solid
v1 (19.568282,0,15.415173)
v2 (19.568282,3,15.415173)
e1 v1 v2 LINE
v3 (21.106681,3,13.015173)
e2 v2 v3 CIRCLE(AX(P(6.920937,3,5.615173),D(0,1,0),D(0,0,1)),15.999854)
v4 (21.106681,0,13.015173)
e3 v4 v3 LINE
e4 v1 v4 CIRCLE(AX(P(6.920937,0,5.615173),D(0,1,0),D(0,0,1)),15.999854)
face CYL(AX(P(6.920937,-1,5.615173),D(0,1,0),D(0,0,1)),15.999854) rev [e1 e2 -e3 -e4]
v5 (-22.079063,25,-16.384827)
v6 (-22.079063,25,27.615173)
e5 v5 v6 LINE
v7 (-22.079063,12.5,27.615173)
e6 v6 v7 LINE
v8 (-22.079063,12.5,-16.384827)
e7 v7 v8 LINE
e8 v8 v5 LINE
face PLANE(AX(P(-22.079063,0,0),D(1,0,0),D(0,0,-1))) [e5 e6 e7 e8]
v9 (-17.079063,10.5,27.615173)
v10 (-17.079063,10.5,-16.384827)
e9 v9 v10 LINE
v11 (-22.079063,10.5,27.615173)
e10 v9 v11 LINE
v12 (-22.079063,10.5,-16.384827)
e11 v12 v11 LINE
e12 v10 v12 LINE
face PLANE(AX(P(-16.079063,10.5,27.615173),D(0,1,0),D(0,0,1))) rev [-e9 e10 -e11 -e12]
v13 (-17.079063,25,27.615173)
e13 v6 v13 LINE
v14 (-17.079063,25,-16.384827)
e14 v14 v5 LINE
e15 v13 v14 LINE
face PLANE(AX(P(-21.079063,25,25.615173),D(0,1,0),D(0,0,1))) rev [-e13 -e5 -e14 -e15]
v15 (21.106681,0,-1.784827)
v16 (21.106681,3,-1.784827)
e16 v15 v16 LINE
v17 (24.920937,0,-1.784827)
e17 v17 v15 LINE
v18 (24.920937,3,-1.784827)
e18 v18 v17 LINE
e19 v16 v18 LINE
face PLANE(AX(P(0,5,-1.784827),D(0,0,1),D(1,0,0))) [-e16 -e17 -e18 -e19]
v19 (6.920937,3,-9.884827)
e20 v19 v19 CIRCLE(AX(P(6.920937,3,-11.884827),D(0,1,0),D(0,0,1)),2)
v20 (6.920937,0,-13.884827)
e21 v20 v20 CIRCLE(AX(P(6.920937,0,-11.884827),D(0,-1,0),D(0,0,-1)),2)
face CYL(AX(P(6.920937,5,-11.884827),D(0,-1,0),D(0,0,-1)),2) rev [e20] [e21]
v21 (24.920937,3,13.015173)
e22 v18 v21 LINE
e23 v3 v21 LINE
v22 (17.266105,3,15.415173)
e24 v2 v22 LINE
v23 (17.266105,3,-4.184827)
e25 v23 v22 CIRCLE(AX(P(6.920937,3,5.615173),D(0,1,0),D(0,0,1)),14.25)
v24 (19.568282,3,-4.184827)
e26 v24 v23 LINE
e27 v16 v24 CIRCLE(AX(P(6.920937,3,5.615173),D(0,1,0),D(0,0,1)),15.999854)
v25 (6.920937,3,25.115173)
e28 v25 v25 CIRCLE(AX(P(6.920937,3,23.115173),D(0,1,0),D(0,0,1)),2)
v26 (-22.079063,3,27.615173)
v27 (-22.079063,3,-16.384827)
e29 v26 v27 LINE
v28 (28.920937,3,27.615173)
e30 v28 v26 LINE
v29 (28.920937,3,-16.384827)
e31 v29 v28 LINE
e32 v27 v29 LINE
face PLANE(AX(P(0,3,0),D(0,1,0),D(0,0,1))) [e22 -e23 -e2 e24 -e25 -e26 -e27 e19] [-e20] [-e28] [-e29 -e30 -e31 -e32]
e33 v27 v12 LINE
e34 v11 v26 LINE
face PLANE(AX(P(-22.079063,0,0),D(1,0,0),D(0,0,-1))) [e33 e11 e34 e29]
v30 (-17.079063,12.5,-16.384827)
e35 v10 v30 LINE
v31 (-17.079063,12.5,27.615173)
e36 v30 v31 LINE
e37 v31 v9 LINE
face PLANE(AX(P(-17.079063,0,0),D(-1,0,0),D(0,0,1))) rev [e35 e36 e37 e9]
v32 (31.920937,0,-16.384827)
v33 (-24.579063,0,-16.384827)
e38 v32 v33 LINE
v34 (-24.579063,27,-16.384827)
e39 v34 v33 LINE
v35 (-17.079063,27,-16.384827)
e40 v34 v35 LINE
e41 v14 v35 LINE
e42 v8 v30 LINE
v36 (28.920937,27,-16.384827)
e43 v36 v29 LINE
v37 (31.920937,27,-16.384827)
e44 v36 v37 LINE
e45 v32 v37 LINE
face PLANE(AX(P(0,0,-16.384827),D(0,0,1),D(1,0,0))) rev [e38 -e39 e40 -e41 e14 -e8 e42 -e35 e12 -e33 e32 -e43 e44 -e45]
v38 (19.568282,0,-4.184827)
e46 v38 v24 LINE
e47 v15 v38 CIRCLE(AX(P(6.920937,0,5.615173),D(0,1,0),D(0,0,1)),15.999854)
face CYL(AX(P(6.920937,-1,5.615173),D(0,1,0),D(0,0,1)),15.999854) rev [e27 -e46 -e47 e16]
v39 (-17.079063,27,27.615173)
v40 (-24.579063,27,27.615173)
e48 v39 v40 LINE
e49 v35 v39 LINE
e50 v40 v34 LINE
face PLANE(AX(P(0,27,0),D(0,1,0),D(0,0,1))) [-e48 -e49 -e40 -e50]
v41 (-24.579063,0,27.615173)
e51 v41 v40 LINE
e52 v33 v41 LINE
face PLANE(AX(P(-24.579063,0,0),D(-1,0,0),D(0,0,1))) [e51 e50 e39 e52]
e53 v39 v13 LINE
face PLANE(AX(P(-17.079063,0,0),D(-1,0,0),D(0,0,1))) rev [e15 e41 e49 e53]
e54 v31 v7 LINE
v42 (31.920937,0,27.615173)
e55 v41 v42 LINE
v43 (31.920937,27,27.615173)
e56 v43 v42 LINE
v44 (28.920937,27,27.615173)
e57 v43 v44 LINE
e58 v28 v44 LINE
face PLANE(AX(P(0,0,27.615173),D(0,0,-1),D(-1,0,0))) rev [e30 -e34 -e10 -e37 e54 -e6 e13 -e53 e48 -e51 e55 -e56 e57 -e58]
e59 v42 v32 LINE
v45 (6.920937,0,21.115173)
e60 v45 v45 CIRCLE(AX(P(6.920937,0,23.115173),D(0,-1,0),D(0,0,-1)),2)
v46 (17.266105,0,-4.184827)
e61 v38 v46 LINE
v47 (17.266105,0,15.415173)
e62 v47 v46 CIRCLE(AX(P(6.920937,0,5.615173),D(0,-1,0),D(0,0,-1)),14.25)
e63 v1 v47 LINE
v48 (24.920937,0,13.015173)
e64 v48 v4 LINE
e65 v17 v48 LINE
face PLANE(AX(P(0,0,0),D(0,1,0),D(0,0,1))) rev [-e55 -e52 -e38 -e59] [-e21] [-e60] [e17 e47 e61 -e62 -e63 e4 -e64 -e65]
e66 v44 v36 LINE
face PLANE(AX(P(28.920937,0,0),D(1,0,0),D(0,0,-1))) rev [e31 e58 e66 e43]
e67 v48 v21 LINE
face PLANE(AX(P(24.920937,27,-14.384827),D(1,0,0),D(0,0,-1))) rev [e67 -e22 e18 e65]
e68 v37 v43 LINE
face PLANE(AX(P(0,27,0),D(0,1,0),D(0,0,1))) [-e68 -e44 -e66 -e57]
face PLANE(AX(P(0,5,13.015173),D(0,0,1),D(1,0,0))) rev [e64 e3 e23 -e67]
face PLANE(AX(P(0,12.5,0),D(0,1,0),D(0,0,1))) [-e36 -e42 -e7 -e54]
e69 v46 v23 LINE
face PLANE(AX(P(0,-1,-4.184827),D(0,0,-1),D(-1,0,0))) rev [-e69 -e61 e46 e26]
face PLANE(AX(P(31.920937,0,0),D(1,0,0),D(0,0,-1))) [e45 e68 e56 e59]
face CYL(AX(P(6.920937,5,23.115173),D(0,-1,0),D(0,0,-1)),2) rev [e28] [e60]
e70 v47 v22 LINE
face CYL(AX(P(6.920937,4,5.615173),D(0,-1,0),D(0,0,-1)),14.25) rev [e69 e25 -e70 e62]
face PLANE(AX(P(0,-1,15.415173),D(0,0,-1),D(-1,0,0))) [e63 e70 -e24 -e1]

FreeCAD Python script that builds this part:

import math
import FreeCAD as App
import Part
import Sketcher
from FreeCAD import Vector
Q = App.Units.Quantity

doc = App.newDocument("Part")
body = doc.addObject("PartDesign::Body", "Body")

# Sketch on XZ plane
sketch1 = body.newObject("Sketcher::SketchObject", "Sketch")
sketch1.AttachmentSupport = (doc.getObject("XZ_Plane"), [""])
sketch1.MapMode = "FlatFace"
sketch1.addGeometry([
    Part.LineSegment(Vector(-23, -14, 0), Vector(-23, 26, 0)),
    Part.LineSegment(Vector(-23, 26, 0), Vector(27, 26, 0)),
    Part.LineSegment(Vector(27, 26, 0), Vector(27, -14, 0)),
    Part.LineSegment(Vector(27, -14, 0), Vector(-23, -14, 0)),
], False)
sketch1.addConstraint([
    Sketcher.Constraint("Coincident", 0, 2, 1, 1),
    Sketcher.Constraint("Coincident", 1, 2, 2, 1),
    Sketcher.Constraint("Coincident", 2, 2, 3, 1),
    Sketcher.Constraint("Coincident", 3, 2, 0, 1),
    Sketcher.Constraint("Vertical", 0),
    Sketcher.Constraint("Horizontal", 1),
    Sketcher.Constraint("Vertical", 2),
    Sketcher.Constraint("Horizontal", 3),
    Sketcher.Constraint("DistanceX", 1, 1, 1, 2, Q("50 mm")),
    Sketcher.Constraint("DistanceY", 0, 1, 0, 2, Q("40 mm")),
    Sketcher.Constraint("DistanceX", 0, 2, -1, 1, Q("23.079063 mm")),
    Sketcher.Constraint("DistanceY", -1, 1, 0, 2, Q("25.615173 mm")),
])
pad1 = body.newObject("PartDesign::Pad", "Pad")
pad1.Profile = sketch1
pad1.Length = 3
pad1.Reversed = True

# Sketch on XZ plane
sketch2 = body.newObject("Sketcher::SketchObject", "Sketch001")
sketch2.AttachmentSupport = (doc.getObject("XZ_Plane"), [""])
sketch2.MapMode = "FlatFace"
sketch2.AttachmentOffset = App.Placement(Vector(0, 0, -3), App.Rotation())
sketch2.addGeometry([
    Part.LineSegment(Vector(-23.1, -14.4, 0), Vector(-23.1, 25.6, 0)),
    Part.LineSegment(Vector(-23.1, 25.6, 0), Vector(-19.1, 25.6, 0)),
    Part.LineSegment(Vector(-19.1, 25.6, 0), Vector(-19.1, -14.4, 0)),
    Part.LineSegment(Vector(-19.1, -14.4, 0), Vector(-23.1, -14.4, 0)),
], False)
sketch2.addConstraint([
    Sketcher.Constraint("Coincident", 0, 2, 1, 1),
    Sketcher.Constraint("Coincident", 1, 2, 2, 1),
    Sketcher.Constraint("Coincident", 2, 2, 3, 1),
    Sketcher.Constraint("Coincident", 3, 2, 0, 1),
    Sketcher.Constraint("Vertical", 0),
    Sketcher.Constraint("Horizontal", 1),
    Sketcher.Constraint("Vertical", 2),
    Sketcher.Constraint("Horizontal", 3),
    Sketcher.Constraint("DistanceX", 1, 1, 1, 2, Q("4 mm")),
    Sketcher.Constraint("DistanceY", 0, 1, 0, 2, Q("40 mm")),
    Sketcher.Constraint("DistanceX", 0, 2, -1, 1, Q("23.079063 mm")),
    Sketcher.Constraint("DistanceY", -1, 1, 0, 2, Q("25.615173 mm")),
])
pad2 = body.newObject("PartDesign::Pad", "Pad001")
pad2.Profile = sketch2
pad2.Length = 24
pad2.Reversed = True

# Sketch on YZ plane
sketch3 = body.newObject("Sketcher::SketchObject", "Sketch002")
sketch3.AttachmentSupport = (doc.getObject("YZ_Plane"), [""])
sketch3.MapMode = "FlatFace"
sketch3.AttachmentOffset = App.Placement(Vector(0, 0, -19.079063), App.Rotation())
sketch3.addGeometry([
    Part.LineSegment(Vector(25, 26, 0), Vector(12, 26, 0)),
    Part.LineSegment(Vector(12, 26, 0), Vector(12, -14, 0)),
    Part.LineSegment(Vector(12, -14, 0), Vector(25, -14, 0)),
    Part.LineSegment(Vector(25, -14, 0), Vector(25, 26, 0)),
], False)
sketch3.addConstraint([
    Sketcher.Constraint("Coincident", 0, 2, 1, 1),
    Sketcher.Constraint("Coincident", 1, 2, 2, 1),
    Sketcher.Constraint("Coincident", 2, 2, 3, 1),
    Sketcher.Constraint("Coincident", 3, 2, 0, 1),
    Sketcher.Constraint("Horizontal", 0),
    Sketcher.Constraint("Vertical", 1),
    Sketcher.Constraint("Horizontal", 2),
    Sketcher.Constraint("Vertical", 3),
    Sketcher.Constraint("DistanceX", 0, 2, 0, 1, Q("13 mm")),
    Sketcher.Constraint("DistanceY", 1, 2, 1, 1, Q("40 mm")),
    Sketcher.Constraint("DistanceX", -1, 1, 0, 2, Q("12 mm")),
    Sketcher.Constraint("DistanceY", -1, 1, 0, 2, Q("25.615173 mm")),
])
pocket1 = body.newObject("PartDesign::Pocket", "Pocket")
pocket1.Profile = sketch3
pocket1.Length = 2

# Sketch on XZ plane
sketch4 = body.newObject("Sketcher::SketchObject", "Sketch003")
sketch4.AttachmentSupport = (doc.getObject("XZ_Plane"), [""])
sketch4.MapMode = "FlatFace"
sketch4.AttachmentOffset = App.Placement(Vector(0, 0, -3), App.Rotation())
sketch4.addGeometry([
    Part.LineSegment(Vector(24.9, -14.4, 0), Vector(24.9, 25.6, 0)),
    Part.LineSegment(Vector(24.9, 25.6, 0), Vector(26.9, 25.6, 0)),
    Part.LineSegment(Vector(26.9, 25.6, 0), Vector(26.9, -14.4, 0)),
    Part.LineSegment(Vector(26.9, -14.4, 0), Vector(24.9, -14.4, 0)),
], False)
sketch4.addConstraint([
    Sketcher.Constraint("Coincident", 0, 2, 1, 1),
    Sketcher.Constraint("Coincident", 1, 2, 2, 1),
    Sketcher.Constraint("Coincident", 2, 2, 3, 1),
    Sketcher.Constraint("Coincident", 3, 2, 0, 1),
    Sketcher.Constraint("Vertical", 0),
    Sketcher.Constraint("Horizontal", 1),
    Sketcher.Constraint("Vertical", 2),
    Sketcher.Constraint("Horizontal", 3),
    Sketcher.Constraint("DistanceX", 1, 1, 1, 2, Q("2 mm")),
    Sketcher.Constraint("DistanceY", 0, 1, 0, 2, Q("40 mm")),
    Sketcher.Constraint("DistanceX", -1, 1, 0, 2, Q("24.920937 mm")),
    Sketcher.Constraint("DistanceY", -1, 1, 0, 2, Q("25.615173 mm")),
])
pad3 = body.newObject("PartDesign::Pad", "Pad002")
pad3.Profile = sketch4
pad3.Length = 24
pad3.Reversed = True

# Sketch on XZ plane
sketch5 = body.newObject("Sketcher::SketchObject", "Sketch004")
sketch5.AttachmentSupport = (doc.getObject("XZ_Plane"), [""])
sketch5.MapMode = "FlatFace"
sketch5.addGeometry([
    Part.Circle(Vector(6.9, 23.1, 0), Vector(0, 0, 1), 2),  # 0
    Part.Circle(Vector(6.9, -11.9, 0), Vector(0, 0, 1), 2),  # 1
    Part.LineSegment(Vector(24.4, 13, 0), Vector(18.9, 13, 0)),  # 2
    Part.ArcOfCircle(Part.Circle(Vector(6.9, 5.6, 0), Vector(0, 0, 1), 14.1), math.radians(32), math.radians(328)),  # 3
    Part.LineSegment(Vector(18.9, -1.8, 0), Vector(24.4, -1.8, 0)),  # 4
    Part.LineSegment(Vector(24.4, -1.8, 0), Vector(24.4, 13, 0)),  # 5
], False)
sketch5.addConstraint([
    Sketcher.Constraint("Coincident", 2, 2, 3, 1),
    Sketcher.Constraint("Coincident", 3, 2, 4, 1),
    Sketcher.Constraint("Coincident", 4, 2, 5, 1),
    Sketcher.Constraint("Coincident", 5, 2, 2, 1),
    Sketcher.Constraint("Horizontal", 2),
    Sketcher.Constraint("Horizontal", 4),
    Sketcher.Constraint("Vertical", 5),
    Sketcher.Constraint("Equal", 0, 1),
    Sketcher.Constraint("Vertical", 0, 3, 1, 3),
    Sketcher.Constraint("Vertical", 1, 3, 3, 3),
    Sketcher.Constraint("Vertical", 2, 2, 3, 2),
    Sketcher.Constraint("Diameter", 0, Q("4 mm")),
    Sketcher.Constraint("Radius", 3, Q("14.1 mm")),
    Sketcher.Constraint("DistanceY", 5, 1, 5, 2, Q("14.8 mm")),
    Sketcher.Constraint("DistanceY", 1, 3, 0, 3, Q("35 mm")),
    Sketcher.Constraint("DistanceY", 3, 3, 0, 3, Q("17.5 mm")),
    Sketcher.Constraint("DistanceX", 3, 3, 4, 2, Q("17.5 mm")),
    Sketcher.Constraint("DistanceX", -1, 1, 2, 2, Q("18.923021 mm")),
    Sketcher.Constraint("DistanceY", -1, 1, 0, 3, Q("23.115173 mm")),
])
pocket2 = body.newObject("PartDesign::Pocket", "Pocket001")
pocket2.Profile = sketch5
pocket2.Length = 5

# Sketch on XY plane
sketch6 = body.newObject("Sketcher::SketchObject", "Sketch005")
sketch6.AttachmentSupport = (doc.getObject("XY_Plane"), [""])
sketch6.MapMode = "FlatFace"
sketch6.AttachmentOffset = App.Placement(Vector(0, 0, 25.615173), App.Rotation())
sketch6.addGeometry([
    Part.LineSegment(Vector(-19.1, 25, 0), Vector(-19.1, 27, 0)),  # 0
    Part.LineSegment(Vector(-19.1, 27, 0), Vector(-23.1, 27, 0)),  # 1
    Part.LineSegment(Vector(-23.1, 27, 0), Vector(-23.1, 0, 0)),  # 2
    Part.LineSegment(Vector(-23.1, 0, 0), Vector(26.9, 0, 0)),  # 3
    Part.LineSegment(Vector(26.9, 0, 0), Vector(26.9, 27, 0)),  # 4
    Part.LineSegment(Vector(26.9, 27, 0), Vector(24.9, 27, 0)),  # 5
    Part.LineSegment(Vector(24.9, 27, 0), Vector(24.9, 3, 0)),  # 6
    Part.LineSegment(Vector(24.9, 3, 0), Vector(-19.1, 3, 0)),  # 7
    Part.LineSegment(Vector(-19.1, 3, 0), Vector(-19.1, 12, 0)),  # 8
    Part.LineSegment(Vector(-19.1, 12, 0), Vector(-21.1, 12, 0)),  # 9
    Part.LineSegment(Vector(-21.1, 12, 0), Vector(-21.1, 25, 0)),  # 10
    Part.LineSegment(Vector(-21.1, 25, 0), Vector(-19.1, 25, 0)),  # 11
], False)
sketch6.addConstraint([
    Sketcher.Constraint("Coincident", 0, 2, 1, 1),
    Sketcher.Constraint("Coincident", 1, 2, 2, 1),
    Sketcher.Constraint("Coincident", 2, 2, 3, 1),
    Sketcher.Constraint("Coincident", 3, 2, 4, 1),
    Sketcher.Constraint("Coincident", 4, 2, 5, 1),
    Sketcher.Constraint("Coincident", 5, 2, 6, 1),
    Sketcher.Constraint("Coincident", 6, 2, 7, 1),
    Sketcher.Constraint("Coincident", 7, 2, 8, 1),
    Sketcher.Constraint("Coincident", 8, 2, 9, 1),
    Sketcher.Constraint("Coincident", 9, 2, 10, 1),
    Sketcher.Constraint("Coincident", 10, 2, 11, 1),
    Sketcher.Constraint("Coincident", 11, 2, 0, 1),
    Sketcher.Constraint("Vertical", 0),
    Sketcher.Constraint("Horizontal", 1),
    Sketcher.Constraint("Vertical", 2),
    Sketcher.Constraint("Horizontal", 3),
    Sketcher.Constraint("Vertical", 4),
    Sketcher.Constraint("Horizontal", 5),
    Sketcher.Constraint("Vertical", 6),
    Sketcher.Constraint("Horizontal", 7),
    Sketcher.Constraint("Vertical", 8),
    Sketcher.Constraint("Horizontal", 9),
    Sketcher.Constraint("Vertical", 10),
    Sketcher.Constraint("Horizontal", 11),
    Sketcher.Constraint("PointOnObject", 2, 2, -1),
    Sketcher.Constraint("Horizontal", 1, 2, 4, 2),
    Sketcher.Constraint("Vertical", 0, 2, 7, 2),
    Sketcher.Constraint("Equal", 5, 9),
    Sketcher.Constraint("Equal", 11, 0),
    Sketcher.Constraint("DistanceX", 1, 2, 1, 1, Q("4 mm")),
    Sketcher.Constraint("DistanceX", 3, 1, 3, 2, Q("50 mm")),
    Sketcher.Constraint("DistanceX", 5, 2, 5, 1, Q("2 mm")),
    Sketcher.Constraint("DistanceY", 2, 2, 2, 1, Q("27 mm")),
    Sketcher.Constraint("DistanceY", 6, 2, 6, 1, Q("24 mm")),
    Sketcher.Constraint("DistanceY", 8, 1, 8, 2, Q("9 mm")),
    Sketcher.Constraint("DistanceX", 0, 2, -1, 1, Q("19.079063 mm")),
])
pad4 = body.newObject("PartDesign::Pad", "Pad003")
pad4.Profile = sketch6
pad4.Length = 2

# Sketch on XY plane
sketch7 = body.newObject("Sketcher::SketchObject", "Sketch006")
sketch7.AttachmentSupport = (doc.getObject("XY_Plane"), [""])
sketch7.MapMode = "FlatFace"
sketch7.AttachmentOffset = App.Placement(Vector(0, 0, -14.384827), App.Rotation())
sketch7.addGeometry([
    Part.LineSegment(Vector(24.9, 27, 0), Vector(26.9, 27, 0)),  # 0
    Part.LineSegment(Vector(26.9, 27, 0), Vector(26.9, 0, 0)),  # 1
    Part.LineSegment(Vector(26.9, 0, 0), Vector(-23.1, 0, 0)),  # 2
    Part.LineSegment(Vector(-23.1, 0, 0), Vector(-23.1, 27, 0)),  # 3
    Part.LineSegment(Vector(-23.1, 27, 0), Vector(-19.1, 27, 0)),  # 4
    Part.LineSegment(Vector(-19.1, 27, 0), Vector(-19.1, 25, 0)),  # 5
    Part.LineSegment(Vector(-19.1, 25, 0), Vector(-21.1, 25, 0)),  # 6
    Part.LineSegment(Vector(-21.1, 25, 0), Vector(-21.1, 12, 0)),  # 7
    Part.LineSegment(Vector(-21.1, 12, 0), Vector(-19.1, 12, 0)),  # 8
    Part.LineSegment(Vector(-19.1, 12, 0), Vector(-19.1, 3, 0)),  # 9
    Part.LineSegment(Vector(-19.1, 3, 0), Vector(24.9, 3, 0)),  # 10
    Part.LineSegment(Vector(24.9, 3, 0), Vector(24.9, 27, 0)),  # 11
], False)
sketch7.addConstraint([
    Sketcher.Constraint("Coincident", 0, 2, 1, 1),
    Sketcher.Constraint("Coincident", 1, 2, 2, 1),
    Sketcher.Constraint("Coincident", 2, 2, 3, 1),
    Sketcher.Constraint("Coincident", 3, 2, 4, 1),
    Sketcher.Constraint("Coincident", 4, 2, 5, 1),
    Sketcher.Constraint("Coincident", 5, 2, 6, 1),
    Sketcher.Constraint("Coincident", 6, 2, 7, 1),
    Sketcher.Constraint("Coincident", 7, 2, 8, 1),
    Sketcher.Constraint("Coincident", 8, 2, 9, 1),
    Sketcher.Constraint("Coincident", 9, 2, 10, 1),
    Sketcher.Constraint("Coincident", 10, 2, 11, 1),
    Sketcher.Constraint("Coincident", 11, 2, 0, 1),
    Sketcher.Constraint("Horizontal", 0),
    Sketcher.Constraint("Vertical", 1),
    Sketcher.Constraint("Horizontal", 2),
    Sketcher.Constraint("Vertical", 3),
    Sketcher.Constraint("Horizontal", 4),
    Sketcher.Constraint("Vertical", 5),
    Sketcher.Constraint("Horizontal", 6),
    Sketcher.Constraint("Vertical", 7),
    Sketcher.Constraint("Horizontal", 8),
    Sketcher.Constraint("Vertical", 9),
    Sketcher.Constraint("Horizontal", 10),
    Sketcher.Constraint("Vertical", 11),
    Sketcher.Constraint("PointOnObject", 1, 2, -1),
    Sketcher.Constraint("Horizontal", 0, 2, 3, 2),
    Sketcher.Constraint("Vertical", 5, 2, 8, 2),
    Sketcher.Constraint("Equal", 0, 6),
    Sketcher.Constraint("Equal", 8, 5),
    Sketcher.Constraint("DistanceX", 0, 1, 0, 2, Q("2 mm")),
    Sketcher.Constraint("DistanceX", 2, 2, 2, 1, Q("50 mm")),
    Sketcher.Constraint("DistanceX", 4, 1, 4, 2, Q("4 mm")),
    Sketcher.Constraint("DistanceY", 1, 2, 1, 1, Q("27 mm")),
    Sketcher.Constraint("DistanceY", 7, 2, 7, 1, Q("13 mm")),
    Sketcher.Constraint("DistanceY", 9, 2, 9, 1, Q("9 mm")),
    Sketcher.Constraint("DistanceX", -1, 1, 0, 2, Q("26.920937 mm")),
])
pad5 = body.newObject("PartDesign::Pad", "Pad004")
pad5.Profile = sketch7
pad5.Length = 2
pad5.Reversed = True

# Sketch on YZ plane
sketch8 = body.newObject("Sketcher::SketchObject", "Sketch007")
sketch8.AttachmentSupport = (doc.getObject("YZ_Plane"), [""])
sketch8.MapMode = "FlatFace"
sketch8.AttachmentOffset = App.Placement(Vector(0, 0, 26.920937), App.Rotation())
sketch8.addGeometry([
    Part.LineSegment(Vector(27, 28, 0), Vector(0, 28, 0)),
    Part.LineSegment(Vector(0, 28, 0), Vector(0, -16, 0)),
    Part.LineSegment(Vector(0, -16, 0), Vector(27, -16, 0)),
    Part.LineSegment(Vector(27, -16, 0), Vector(27, 28, 0)),
], False)
sketch8.addConstraint([
    Sketcher.Constraint("Coincident", 0, 2, 1, 1),
    Sketcher.Constraint("Coincident", 1, 2, 2, 1),
    Sketcher.Constraint("Coincident", 2, 2, 3, 1),
    Sketcher.Constraint("Coincident", 3, 2, 0, 1),
    Sketcher.Constraint("Horizontal", 0),
    Sketcher.Constraint("Vertical", 1),
    Sketcher.Constraint("Horizontal", 2),
    Sketcher.Constraint("Vertical", 3),
    Sketcher.Constraint("PointOnObject", 0, 2, -2),
    Sketcher.Constraint("DistanceX", 0, 2, 0, 1, Q("27 mm")),
    Sketcher.Constraint("DistanceY", 1, 2, 1, 1, Q("44 mm")),
    Sketcher.Constraint("DistanceY", -1, 1, 0, 2, Q("27.615173 mm")),
])
pad6 = body.newObject("PartDesign::Pad", "Pad005")
pad6.Profile = sketch8
pad6.Length = 1

# Sketch on YZ plane
sketch9 = body.newObject("Sketcher::SketchObject", "Sketch008")
sketch9.AttachmentSupport = (doc.getObject("YZ_Plane"), [""])
sketch9.MapMode = "FlatFace"
sketch9.AttachmentOffset = App.Placement(Vector(0, 0, -19.079063), App.Rotation())
sketch9.addGeometry([
    Part.LineSegment(Vector(27, 27.6, 0), Vector(25, 27.6, 0)),
    Part.LineSegment(Vector(25, 27.6, 0), Vector(25, -16.4, 0)),
    Part.LineSegment(Vector(25, -16.4, 0), Vector(27, -16.4, 0)),
    Part.LineSegment(Vector(27, -16.4, 0), Vector(27, 27.6, 0)),
], False)
sketch9.addConstraint([
    Sketcher.Constraint("Coincident", 0, 2, 1, 1),
    Sketcher.Constraint("Coincident", 1, 2, 2, 1),
    Sketcher.Constraint("Coincident", 2, 2, 3, 1),
    Sketcher.Constraint("Coincident", 3, 2, 0, 1),
    Sketcher.Constraint("Horizontal", 0),
    Sketcher.Constraint("Vertical", 1),
    Sketcher.Constraint("Horizontal", 2),
    Sketcher.Constraint("Vertical", 3),
    Sketcher.Constraint("DistanceX", 0, 2, 0, 1, Q("2 mm")),
    Sketcher.Constraint("DistanceY", 1, 2, 1, 1, Q("44 mm")),
    Sketcher.Constraint("DistanceX", -1, 1, 0, 2, Q("25 mm")),
    Sketcher.Constraint("DistanceY", -1, 1, 0, 2, Q("27.615173 mm")),
])
pad7 = body.newObject("PartDesign::Pad", "Pad006")
pad7.Profile = sketch9
pad7.Length = 3

# Sketch on XZ plane
sketch10 = body.newObject("Sketcher::SketchObject", "Sketch009")
sketch10.AttachmentSupport = (doc.getObject("XZ_Plane"), [""])
sketch10.MapMode = "FlatFace"
sketch10.AttachmentOffset = App.Placement(Vector(0, 0, -12), App.Rotation())
sketch10.addGeometry([
    Part.LineSegment(Vector(-19.1, 27.6, 0), Vector(-21.1, 27.6, 0)),
    Part.LineSegment(Vector(-21.1, 27.6, 0), Vector(-21.1, -16.4, 0)),
    Part.LineSegment(Vector(-21.1, -16.4, 0), Vector(-19.1, -16.4, 0)),
    Part.LineSegment(Vector(-19.1, -16.4, 0), Vector(-19.1, 27.6, 0)),
], False)
sketch10.addConstraint([
    Sketcher.Constraint("Coincident", 0, 2, 1, 1),
    Sketcher.Constraint("Coincident", 1, 2, 2, 1),
    Sketcher.Constraint("Coincident", 2, 2, 3, 1),
    Sketcher.Constraint("Coincident", 3, 2, 0, 1),
    Sketcher.Constraint("Horizontal", 0),
    Sketcher.Constraint("Vertical", 1),
    Sketcher.Constraint("Horizontal", 2),
    Sketcher.Constraint("Vertical", 3),
    Sketcher.Constraint("DistanceX", 0, 2, 0, 1, Q("2 mm")),
    Sketcher.Constraint("DistanceY", 1, 2, 1, 1, Q("44 mm")),
    Sketcher.Constraint("DistanceX", 0, 2, -1, 1, Q("21.079063 mm")),
    Sketcher.Constraint("DistanceY", -1, 1, 0, 2, Q("27.615173 mm")),
])
pad8 = body.newObject("PartDesign::Pad", "Pad007")
pad8.Profile = sketch10
pad8.Length = 0.5
pad8.Reversed = True

# Sketch on YZ plane
sketch11 = body.newObject("Sketcher::SketchObject", "Sketch010")
sketch11.AttachmentSupport = (doc.getObject("YZ_Plane"), [""])
sketch11.MapMode = "FlatFace"
sketch11.AttachmentOffset = App.Placement(Vector(0, 0, -19.079063), App.Rotation())
sketch11.addGeometry([
    Part.LineSegment(Vector(12.5, 27.6, 0), Vector(10.5, 27.6, 0)),
    Part.LineSegment(Vector(10.5, 27.6, 0), Vector(10.5, -16.4, 0)),
    Part.LineSegment(Vector(10.5, -16.4, 0), Vector(12.5, -16.4, 0)),
    Part.LineSegment(Vector(12.5, -16.4, 0), Vector(12.5, 27.6, 0)),
], False)
sketch11.addConstraint([
    Sketcher.Constraint("Coincident", 0, 2, 1, 1),
    Sketcher.Constraint("Coincident", 1, 2, 2, 1),
    Sketcher.Constraint("Coincident", 2, 2, 3, 1),
    Sketcher.Constraint("Coincident", 3, 2, 0, 1),
    Sketcher.Constraint("Horizontal", 0),
    Sketcher.Constraint("Vertical", 1),
    Sketcher.Constraint("Horizontal", 2),
    Sketcher.Constraint("Vertical", 3),
    Sketcher.Constraint("DistanceX", 0, 2, 0, 1, Q("2 mm")),
    Sketcher.Constraint("DistanceY", 1, 2, 1, 1, Q("44 mm")),
    Sketcher.Constraint("DistanceX", -1, 1, 0, 2, Q("10.5 mm")),
    Sketcher.Constraint("DistanceY", -1, 1, 0, 2, Q("27.615173 mm")),
])
pad9 = body.newObject("PartDesign::Pad", "Pad008")
pad9.Profile = sketch11
pad9.Length = 3

# Sketch on YZ plane
sketch12 = body.newObject("Sketcher::SketchObject", "Sketch011")
sketch12.AttachmentSupport = (doc.getObject("YZ_Plane"), [""])
sketch12.MapMode = "FlatFace"
sketch12.AttachmentOffset = App.Placement(Vector(0, 0, 24.420937), App.Rotation())
sketch12.addGeometry([
    Part.LineSegment(Vector(3, -1.8, 0), Vector(0, -1.8, 0)),
    Part.LineSegment(Vector(0, -1.8, 0), Vector(0, 13, 0)),
    Part.LineSegment(Vector(0, 13, 0), Vector(3, 13, 0)),
    Part.LineSegment(Vector(3, 13, 0), Vector(3, -1.8, 0)),
], False)
sketch12.addConstraint([
    Sketcher.Constraint("Coincident", 0, 2, 1, 1),
    Sketcher.Constraint("Coincident", 1, 2, 2, 1),
    Sketcher.Constraint("Coincident", 2, 2, 3, 1),
    Sketcher.Constraint("Coincident", 3, 2, 0, 1),
    Sketcher.Constraint("Horizontal", 0),
    Sketcher.Constraint("Vertical", 1),
    Sketcher.Constraint("Horizontal", 2),
    Sketcher.Constraint("Vertical", 3),
    Sketcher.Constraint("PointOnObject", 0, 2, -2),
    Sketcher.Constraint("DistanceX", 0, 2, 0, 1, Q("3 mm")),
    Sketcher.Constraint("DistanceY", 1, 1, 1, 2, Q("14.8 mm")),
    Sketcher.Constraint("DistanceY", 0, 2, -1, 1, Q("1.784827 mm")),
])
pocket3 = body.newObject("PartDesign::Pocket", "Pocket002")
pocket3.Profile = sketch12
pocket3.Length = 0.5
pocket3.Reversed = True

# Sketch on YZ plane
sketch13 = body.newObject("Sketcher::SketchObject", "Sketch012")
sketch13.AttachmentSupport = (doc.getObject("YZ_Plane"), [""])
sketch13.MapMode = "FlatFace"
sketch13.AttachmentOffset = App.Placement(Vector(0, 0, 27.920937), App.Rotation())
sketch13.addGeometry([
    Part.LineSegment(Vector(27, 28, 0), Vector(0, 28, 0)),
    Part.LineSegment(Vector(0, 28, 0), Vector(0, -16, 0)),
    Part.LineSegment(Vector(0, -16, 0), Vector(27, -16, 0)),
    Part.LineSegment(Vector(27, -16, 0), Vector(27, 28, 0)),
], False)
sketch13.addConstraint([
    Sketcher.Constraint("Coincident", 0, 2, 1, 1),
    Sketcher.Constraint("Coincident", 1, 2, 2, 1),
    Sketcher.Constraint("Coincident", 2, 2, 3, 1),
    Sketcher.Constraint("Coincident", 3, 2, 0, 1),
    Sketcher.Constraint("Horizontal", 0),
    Sketcher.Constraint("Vertical", 1),
    Sketcher.Constraint("Horizontal", 2),
    Sketcher.Constraint("Vertical", 3),
    Sketcher.Constraint("PointOnObject", 0, 2, -2),
    Sketcher.Constraint("DistanceX", 0, 2, 0, 1, Q("27 mm")),
    Sketcher.Constraint("DistanceY", 1, 2, 1, 1, Q("44 mm")),
    Sketcher.Constraint("DistanceY", -1, 1, 0, 2, Q("27.615173 mm")),
])
pad10 = body.newObject("PartDesign::Pad", "Pad009")
pad10.Profile = sketch13
pad10.Length = 4

# Sketch on YZ plane
sketch14 = body.newObject("Sketcher::SketchObject", "Sketch013")
sketch14.AttachmentSupport = (doc.getObject("YZ_Plane"), [""])
sketch14.MapMode = "FlatFace"
sketch14.AttachmentOffset = App.Placement(Vector(0, 0, 24.920937), App.Rotation())
sketch14.addGeometry([
    Part.LineSegment(Vector(27, -16, 0), Vector(3, -16, 0)),
    Part.LineSegment(Vector(3, -16, 0), Vector(3, 28, 0)),
    Part.LineSegment(Vector(3, 28, 0), Vector(27, 28, 0)),
    Part.LineSegment(Vector(27, 28, 0), Vector(27, -16, 0)),
], False)
sketch14.addConstraint([
    Sketcher.Constraint("Coincident", 0, 2, 1, 1),
    Sketcher.Constraint("Coincident", 1, 2, 2, 1),
    Sketcher.Constraint("Coincident", 2, 2, 3, 1),
    Sketcher.Constraint("Coincident", 3, 2, 0, 1),
    Sketcher.Constraint("Horizontal", 0),
    Sketcher.Constraint("Vertical", 1),
    Sketcher.Constraint("Horizontal", 2),
    Sketcher.Constraint("Vertical", 3),
    Sketcher.Constraint("DistanceX", 0, 2, 0, 1, Q("24 mm")),
    Sketcher.Constraint("DistanceY", 1, 1, 1, 2, Q("44 mm")),
    Sketcher.Constraint("DistanceX", -1, 1, 0, 2, Q("3 mm")),
    Sketcher.Constraint("DistanceY", 0, 2, -1, 1, Q("16.384827 mm")),
])
pocket4 = body.newObject("PartDesign::Pocket", "Pocket003")
pocket4.Profile = sketch14
pocket4.Length = 4
pocket4.Reversed = True

# Sketch on XZ plane
sketch15 = body.newObject("Sketcher::SketchObject", "Sketch014")
sketch15.AttachmentSupport = (doc.getObject("XZ_Plane"), [""])
sketch15.MapMode = "FlatFace"
sketch15.addGeometry(Part.Circle(Vector(7, 6, 0), Vector(0, 0, 1), 14), False)
sketch15.addConstraint([
    Sketcher.Constraint("Diameter", 0, Q("28.5 mm")),
    Sketcher.Constraint("DistanceX", -1, 1, 0, 3, Q("6.920937 mm")),
    Sketcher.Constraint("DistanceY", -1, 1, 0, 3, Q("5.615173 mm")),
])
pocket5 = body.newObject("PartDesign::Pocket", "Pocket004")
pocket5.Profile = sketch15
pocket5.Length = 4

# Sketch on XZ plane
sketch16 = body.newObject("Sketcher::SketchObject", "Sketch015")
sketch16.AttachmentSupport = (doc.getObject("XZ_Plane"), [""])
sketch16.MapMode = "FlatFace"
sketch16.AttachmentOffset = App.Placement(Vector(0, 0, 1), App.Rotation())
sketch16.addGeometry([
    Part.ArcOfCircle(Part.Circle(Vector(6.9, 5.6, 0), Vector(0, 0, 1), 16), math.radians(-37.77), math.radians(-27.55)),  # 0
    Part.LineSegment(Vector(19.6, -4.2, 0), Vector(17.3, -4.2, 0)),  # 1
    Part.ArcOfCircle(Part.Circle(Vector(6.9, 5.6, 0), Vector(0, 0, 1), 14.2), math.radians(-43.45), math.radians(-31.29)),  # 2
    Part.LineSegment(Vector(19.1, -1.8, 0), Vector(21.1, -1.8, 0)),  # 3
    Part.LineSegment(Vector(17.3, 15.4, 0), Vector(19.6, 15.4, 0)),  # 4
    Part.ArcOfCircle(Part.Circle(Vector(6.9, 5.6, 0), Vector(0, 0, 1), 16), math.radians(27.55), math.radians(37.77)),  # 5
    Part.LineSegment(Vector(21.1, 13, 0), Vector(19.1, 13, 0)),  # 6
    Part.ArcOfCircle(Part.Circle(Vector(6.9, 5.6, 0), Vector(0, 0, 1), 14.2), math.radians(31.29), math.radians(43.45)),  # 7
], False)
sketch16.addConstraint([
    Sketcher.Constraint("Coincident", 0, 1, 1, 1),
    Sketcher.Constraint("Coincident", 1, 2, 2, 1),
    Sketcher.Constraint("Coincident", 2, 2, 3, 1),
    Sketcher.Constraint("Coincident", 3, 2, 0, 2),
    Sketcher.Constraint("Coincident", 4, 2, 5, 2),
    Sketcher.Constraint("Coincident", 5, 1, 6, 1),
    Sketcher.Constraint("Coincident", 6, 2, 7, 1),
    Sketcher.Constraint("Coincident", 7, 2, 4, 1),
    Sketcher.Constraint("Horizontal", 1),
    Sketcher.Constraint("Horizontal", 3),
    Sketcher.Constraint("Horizontal", 4),
    Sketcher.Constraint("Horizontal", 6),
    Sketcher.Constraint("Coincident", 2, 3, 0, 3),
    Sketcher.Constraint("Coincident", 5, 3, 0, 3),
    Sketcher.Constraint("Coincident", 7, 3, 0, 3),
    Sketcher.Constraint("Equal", 0, 5),
    Sketcher.Constraint("Equal", 2, 7),
    Sketcher.Constraint("Vertical", 0, 1, 4, 2),
    Sketcher.Constraint("Vertical", 3, 2, 5, 1),
    Sketcher.Constraint("Radius", 2, Q("14.25 mm")),
    Sketcher.Constraint("DistanceY", 0, 1, 0, 3, Q("9.8 mm")),
    Sketcher.Constraint("DistanceY", 0, 1, 2, 2, Q("2.4 mm")),
    Sketcher.Constraint("Radius", 0, Q("15.999853 mm")),
    Sketcher.Constraint("DistanceX", -1, 1, 0, 1, Q("19.568282 mm")),
    Sketcher.Constraint("DistanceY", -1, 1, 0, 3, Q("5.615172 mm")),
])
pocket6 = body.newObject("PartDesign::Pocket", "Pocket005")
pocket6.Profile = sketch16
pocket6.Length = 4

# Sketch on YZ plane
sketch17 = body.newObject("Sketcher::SketchObject", "Sketch016")
sketch17.AttachmentSupport = (doc.getObject("YZ_Plane"), [""])
sketch17.MapMode = "FlatFace"
sketch17.AttachmentOffset = App.Placement(Vector(0, 0, -23.079063), App.Rotation())
sketch17.addGeometry([
    Part.LineSegment(Vector(27, -16, 0), Vector(0, -16, 0)),
    Part.LineSegment(Vector(0, -16, 0), Vector(0, 28, 0)),
    Part.LineSegment(Vector(0, 28, 0), Vector(27, 28, 0)),
    Part.LineSegment(Vector(27, 28, 0), Vector(27, -16, 0)),
], False)
sketch17.addConstraint([
    Sketcher.Constraint("Coincident", 0, 2, 1, 1),
    Sketcher.Constraint("Coincident", 1, 2, 2, 1),
    Sketcher.Constraint("Coincident", 2, 2, 3, 1),
    Sketcher.Constraint("Coincident", 3, 2, 0, 1),
    Sketcher.Constraint("Horizontal", 0),
    Sketcher.Constraint("Vertical", 1),
    Sketcher.Constraint("Horizontal", 2),
    Sketcher.Constraint("Vertical", 3),
    Sketcher.Constraint("PointOnObject", 0, 2, -2),
    Sketcher.Constraint("DistanceX", 0, 2, 0, 1, Q("27 mm")),
    Sketcher.Constraint("DistanceY", 1, 1, 1, 2, Q("44 mm")),
    Sketcher.Constraint("DistanceY", 0, 2, -1, 1, Q("16.384827 mm")),
])
pad11 = body.newObject("PartDesign::Pad", "Pad010")
pad11.Profile = sketch17
pad11.Length = 1
pad11.Reversed = True

# Sketch on YZ plane
sketch18 = body.newObject("Sketcher::SketchObject", "Sketch017")
sketch18.AttachmentSupport = (doc.getObject("YZ_Plane"), [""])
sketch18.MapMode = "FlatFace"
sketch18.AttachmentOffset = App.Placement(Vector(0, 0, -21.079063), App.Rotation())
sketch18.addGeometry([
    Part.LineSegment(Vector(25, 28, 0), Vector(12, 28, 0)),
    Part.LineSegment(Vector(12, 28, 0), Vector(12, -16, 0)),
    Part.LineSegment(Vector(12, -16, 0), Vector(25, -16, 0)),
    Part.LineSegment(Vector(25, -16, 0), Vector(25, 28, 0)),
], False)
sketch18.addConstraint([
    Sketcher.Constraint("Coincident", 0, 2, 1, 1),
    Sketcher.Constraint("Coincident", 1, 2, 2, 1),
    Sketcher.Constraint("Coincident", 2, 2, 3, 1),
    Sketcher.Constraint("Coincident", 3, 2, 0, 1),
    Sketcher.Constraint("Horizontal", 0),
    Sketcher.Constraint("Vertical", 1),
    Sketcher.Constraint("Horizontal", 2),
    Sketcher.Constraint("Vertical", 3),
    Sketcher.Constraint("DistanceY", 1, 2, 1, 1, Q("44 mm")),
    Sketcher.Constraint("DistanceX", 0, 2, 0, 1, Q("12.5 mm")),
    Sketcher.Constraint("DistanceX", -1, 1, 2, 2, Q("25 mm")),
    Sketcher.Constraint("DistanceY", -1, 1, 0, 2, Q("27.615173 mm")),
])
pocket7 = body.newObject("PartDesign::Pocket", "Pocket006")
pocket7.Profile = sketch18
pocket7.Length = 1

# Sketch on YZ plane
sketch19 = body.newObject("Sketcher::SketchObject", "Sketch018")
sketch19.AttachmentSupport = (doc.getObject("YZ_Plane"), [""])
sketch19.MapMode = "FlatFace"
sketch19.AttachmentOffset = App.Placement(Vector(0, 0, -16.079063), App.Rotation())
sketch19.addGeometry([
    Part.LineSegment(Vector(27, 27.6, 0), Vector(25, 27.6, 0)),
    Part.LineSegment(Vector(25, 27.6, 0), Vector(25, -16.4, 0)),
    Part.LineSegment(Vector(25, -16.4, 0), Vector(27, -16.4, 0)),
    Part.LineSegment(Vector(27, -16.4, 0), Vector(27, 27.6, 0)),
], False)
sketch19.addConstraint([
    Sketcher.Constraint("Coincident", 0, 2, 1, 1),
    Sketcher.Constraint("Coincident", 1, 2, 2, 1),
    Sketcher.Constraint("Coincident", 2, 2, 3, 1),
    Sketcher.Constraint("Coincident", 3, 2, 0, 1),
    Sketcher.Constraint("Horizontal", 0),
    Sketcher.Constraint("Vertical", 1),
    Sketcher.Constraint("Horizontal", 2),
    Sketcher.Constraint("Vertical", 3),
    Sketcher.Constraint("DistanceX", 0, 2, 0, 1, Q("2 mm")),
    Sketcher.Constraint("DistanceY", 1, 2, 1, 1, Q("44 mm")),
    Sketcher.Constraint("DistanceX", -1, 1, 0, 2, Q("25 mm")),
    Sketcher.Constraint("DistanceY", -1, 1, 0, 2, Q("27.615173 mm")),
])
pocket8 = body.newObject("PartDesign::Pocket", "Pocket007")
pocket8.Profile = sketch19
pocket8.Length = 1

# Sketch on YZ plane
sketch20 = body.newObject("Sketcher::SketchObject", "Sketch019")
sketch20.AttachmentSupport = (doc.getObject("YZ_Plane"), [""])
sketch20.MapMode = "FlatFace"
sketch20.AttachmentOffset = App.Placement(Vector(0, 0, -16.079063), App.Rotation())
sketch20.addGeometry([
    Part.LineSegment(Vector(12.5, 27.6, 0), Vector(10.5, 27.6, 0)),
    Part.LineSegment(Vector(10.5, 27.6, 0), Vector(10.5, -16.4, 0)),
    Part.LineSegment(Vector(10.5, -16.4, 0), Vector(12.5, -16.4, 0)),
    Part.LineSegment(Vector(12.5, -16.4, 0), Vector(12.5, 27.6, 0)),
], False)
sketch20.addConstraint([
    Sketcher.Constraint("Coincident", 0, 2, 1, 1),
    Sketcher.Constraint("Coincident", 1, 2, 2, 1),
    Sketcher.Constraint("Coincident", 2, 2, 3, 1),
    Sketcher.Constraint("Coincident", 3, 2, 0, 1),
    Sketcher.Constraint("Horizontal", 0),
    Sketcher.Constraint("Vertical", 1),
    Sketcher.Constraint("Horizontal", 2),
    Sketcher.Constraint("Vertical", 3),
    Sketcher.Constraint("DistanceX", 0, 2, 0, 1, Q("2 mm")),
    Sketcher.Constraint("DistanceY", 1, 2, 1, 1, Q("44 mm")),
    Sketcher.Constraint("DistanceX", -1, 1, 0, 2, Q("10.5 mm")),
    Sketcher.Constraint("DistanceY", -1, 1, 0, 2, Q("27.615173 mm")),
])
pocket9 = body.newObject("PartDesign::Pocket", "Pocket008")
pocket9.Profile = sketch20
pocket9.Length = 1

# Sketch on YZ plane
sketch21 = body.newObject("Sketcher::SketchObject", "Sketch020")
sketch21.AttachmentSupport = (doc.getObject("YZ_Plane"), [""])
sketch21.MapMode = "FlatFace"
sketch21.AttachmentOffset = App.Placement(Vector(0, 0, -19.079063), App.Rotation())
sketch21.addGeometry([
    Part.LineSegment(Vector(10, 28, 0), Vector(3, 28, 0)),
    Part.LineSegment(Vector(3, 28, 0), Vector(3, -16, 0)),
    Part.LineSegment(Vector(3, -16, 0), Vector(10, -16, 0)),
    Part.LineSegment(Vector(10, -16, 0), Vector(10, 28, 0)),
], False)
sketch21.addConstraint([
    Sketcher.Constraint("Coincident", 0, 2, 1, 1),
    Sketcher.Constraint("Coincident", 1, 2, 2, 1),
    Sketcher.Constraint("Coincident", 2, 2, 3, 1),
    Sketcher.Constraint("Coincident", 3, 2, 0, 1),
    Sketcher.Constraint("Horizontal", 0),
    Sketcher.Constraint("Vertical", 1),
    Sketcher.Constraint("Horizontal", 2),
    Sketcher.Constraint("Vertical", 3),
    Sketcher.Constraint("DistanceY", 1, 2, 1, 1, Q("44 mm")),
    Sketcher.Constraint("DistanceX", 0, 2, 0, 1, Q("7.5 mm")),
    Sketcher.Constraint("DistanceX", -1, 1, 0, 2, Q("3 mm")),
    Sketcher.Constraint("DistanceY", -1, 1, 0, 2, Q("27.615173 mm")),
])
pocket10 = body.newObject("PartDesign::Pocket", "Pocket009")
pocket10.Profile = sketch21
pocket10.Length = 3

# Sketch on YZ plane
sketch22 = body.newObject("Sketcher::SketchObject", "Sketch021")
sketch22.AttachmentSupport = (doc.getObject("YZ_Plane"), [""])
sketch22.MapMode = "FlatFace"
sketch22.AttachmentOffset = App.Placement(Vector(0, 0, -24.079063), App.Rotation())
sketch22.addGeometry([
    Part.LineSegment(Vector(27, -16, 0), Vector(0, -16, 0)),
    Part.LineSegment(Vector(0, -16, 0), Vector(0, 28, 0)),
    Part.LineSegment(Vector(0, 28, 0), Vector(27, 28, 0)),
    Part.LineSegment(Vector(27, 28, 0), Vector(27, -16, 0)),
], False)
sketch22.addConstraint([
    Sketcher.Constraint("Coincident", 0, 2, 1, 1),
    Sketcher.Constraint("Coincident", 1, 2, 2, 1),
    Sketcher.Constraint("Coincident", 2, 2, 3, 1),
    Sketcher.Constraint("Coincident", 3, 2, 0, 1),
    Sketcher.Constraint("Horizontal", 0),
    Sketcher.Constraint("Vertical", 1),
    Sketcher.Constraint("Horizontal", 2),
    Sketcher.Constraint("Vertical", 3),
    Sketcher.Constraint("PointOnObject", 0, 2, -2),
    Sketcher.Constraint("DistanceX", 0, 2, 0, 1, Q("27 mm")),
    Sketcher.Constraint("DistanceY", 1, 1, 1, 2, Q("44 mm")),
    Sketcher.Constraint("DistanceY", 0, 2, -1, 1, Q("16.384827 mm")),
])
pad12 = body.newObject("PartDesign::Pad", "Pad011")
pad12.Profile = sketch22
pad12.Length = 0.5
pad12.Reversed = True

doc.recompute()
